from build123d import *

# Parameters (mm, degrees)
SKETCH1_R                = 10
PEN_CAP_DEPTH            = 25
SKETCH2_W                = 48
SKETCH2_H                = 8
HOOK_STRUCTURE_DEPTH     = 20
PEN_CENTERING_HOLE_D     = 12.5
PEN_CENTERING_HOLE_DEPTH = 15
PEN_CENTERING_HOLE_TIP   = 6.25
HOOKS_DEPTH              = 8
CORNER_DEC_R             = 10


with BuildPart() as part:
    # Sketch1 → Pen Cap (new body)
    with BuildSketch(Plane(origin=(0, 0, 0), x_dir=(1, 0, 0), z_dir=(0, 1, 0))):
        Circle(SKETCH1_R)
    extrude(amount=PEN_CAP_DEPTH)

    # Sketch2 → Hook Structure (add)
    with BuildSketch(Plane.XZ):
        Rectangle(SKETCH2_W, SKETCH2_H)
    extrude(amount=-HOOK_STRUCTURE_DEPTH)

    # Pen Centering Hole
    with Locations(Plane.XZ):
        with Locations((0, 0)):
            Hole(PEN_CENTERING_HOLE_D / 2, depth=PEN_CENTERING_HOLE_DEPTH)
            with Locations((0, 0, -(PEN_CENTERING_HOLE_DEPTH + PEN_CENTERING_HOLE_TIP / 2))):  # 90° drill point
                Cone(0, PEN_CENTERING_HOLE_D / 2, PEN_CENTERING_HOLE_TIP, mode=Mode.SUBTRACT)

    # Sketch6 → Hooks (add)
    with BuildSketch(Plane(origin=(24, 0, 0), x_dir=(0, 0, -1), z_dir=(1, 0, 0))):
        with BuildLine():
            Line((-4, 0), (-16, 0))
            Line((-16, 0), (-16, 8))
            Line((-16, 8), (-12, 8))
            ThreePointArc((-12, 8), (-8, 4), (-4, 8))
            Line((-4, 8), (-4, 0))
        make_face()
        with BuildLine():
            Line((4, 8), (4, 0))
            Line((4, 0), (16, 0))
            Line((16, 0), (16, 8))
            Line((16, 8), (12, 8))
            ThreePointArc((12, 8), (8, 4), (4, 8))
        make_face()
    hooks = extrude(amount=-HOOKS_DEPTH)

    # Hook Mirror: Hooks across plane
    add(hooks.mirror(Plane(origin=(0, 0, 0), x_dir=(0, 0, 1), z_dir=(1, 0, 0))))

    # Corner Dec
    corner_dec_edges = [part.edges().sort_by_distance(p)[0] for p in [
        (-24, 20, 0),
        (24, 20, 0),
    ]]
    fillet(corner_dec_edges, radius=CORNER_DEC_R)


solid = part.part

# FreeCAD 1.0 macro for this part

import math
import FreeCAD as App
import Part
import Sketcher
Q = App.Units.Quantity


def edges_at(feature, points):
    """Names of the edges that pass closest to the given points."""
    edges = feature.Shape.Edges
    near = lambda p: min(range(len(edges)), key=lambda i: edges[i].distToShape(Part.Vertex(*p))[0])
    return sorted({f"Edge{near(p) + 1}" for p in points})

doc = App.newDocument("Part")
params = doc.addObject("Spreadsheet::Sheet", "Params")
for row, (alias, value) in enumerate([
    ("sketch1_diameter", "20 mm"),
    ("pad1_length", "25 mm"),
    ("sketch2_width", "48 mm"),
    ("sketch2_height", "8 mm"),
    ("pad2_length", "20 mm"),
    ("sketch3_diameter", "12.5 mm"),
    ("hole_diameter", "12.5 mm"),
    ("hole_depth", "15 mm"),
    ("sketch4_radius", "4 mm"),
    ("sketch4_width", "8 mm"),
    ("sketch4_height", "12 mm"),
    ("pad3_length", "8 mm"),
    ("fillet_radius", "10 mm"),
], start=1):
    params.set(f"A{row}", alias)
    params.set(f"B{row}", "=" + value)
    params.setAlias(f"B{row}", alias)

body = doc.addObject("PartDesign::Body", "Body")

sketch1 = body.newObject("Sketcher::SketchObject", "Sketch")
sketch1.AttachmentSupport = (doc.getObject("XZ_Plane"), [""])
sketch1.MapMode = "FlatFace"
sketch1.addGeometry(Part.Circle(App.Vector(0, 0, 0), App.Vector(0, 0, 1), 10), False)
sketch1.addConstraint([
    Sketcher.Constraint("Coincident", 0, 3, -1, 1),
    Sketcher.Constraint("Diameter", 0, Q("20 mm")),
])
sketch1.setExpression("Constraints[1]", "Params.sketch1_diameter")
pad1 = body.newObject("PartDesign::Pad", "Pad")
pad1.Profile = sketch1
pad1.setExpression("Length", "Params.pad1_length")
pad1.Reversed = True

sketch2 = body.newObject("Sketcher::SketchObject", "Sketch001")
sketch2.AttachmentSupport = (doc.getObject("XZ_Plane"), [""])
sketch2.MapMode = "FlatFace"
sketch2.addGeometry([
    Part.LineSegment(App.Vector(-24, 4, 0), App.Vector(-24, -4, 0)),
    Part.LineSegment(App.Vector(-24, -4, 0), App.Vector(24, -4, 0)),
    Part.LineSegment(App.Vector(24, -4, 0), App.Vector(24, 4, 0)),
    Part.LineSegment(App.Vector(24, 4, 0), App.Vector(-24, 4, 0)),
], False)
sketch2.addConstraint([
    Sketcher.Constraint("Coincident", 0, 2, 1, 1),
    Sketcher.Constraint("Coincident", 1, 2, 2, 1),
    Sketcher.Constraint("Coincident", 2, 2, 3, 1),
    Sketcher.Constraint("Coincident", 3, 2, 0, 1),
    Sketcher.Constraint("Vertical", 0),
    Sketcher.Constraint("Horizontal", 1),
    Sketcher.Constraint("Vertical", 2),
    Sketcher.Constraint("Horizontal", 3),
    Sketcher.Constraint("Symmetric", 0, 2, 2, 2, -1, 1),
    Sketcher.Constraint("DistanceX", 1, 1, 1, 2, Q("48 mm")),
    Sketcher.Constraint("DistanceY", 0, 2, 0, 1, Q("8 mm")),
])
sketch2.setExpression("Constraints[9]", "Params.sketch2_width")
sketch2.setExpression("Constraints[10]", "Params.sketch2_height")
pad2 = body.newObject("PartDesign::Pad", "Pad001")
pad2.Profile = sketch2
pad2.setExpression("Length", "Params.pad2_length")
pad2.Reversed = True

sketch3 = body.newObject("Sketcher::SketchObject", "Sketch002")
sketch3.AttachmentSupport = (doc.getObject("XZ_Plane"), [""])
sketch3.MapMode = "FlatFace"
sketch3.addGeometry(Part.Circle(App.Vector(0, 0, 0), App.Vector(0, 0, 1), 6.25), False)
sketch3.addConstraint([
    Sketcher.Constraint("Coincident", 0, 3, -1, 1),
    Sketcher.Constraint("Diameter", 0, Q("12.5 mm")),
])
sketch3.setExpression("Constraints[1]", "Params.sketch3_diameter")
doc.recompute()
hole = body.newObject("PartDesign::Hole", "Hole")
hole.Profile = sketch3
hole.ThreadType = "None"
hole.setExpression("Diameter", "Params.hole_diameter")
hole.DepthType = "Dimension"
hole.setExpression("Depth", "Params.hole_depth")
hole.DrillPoint = "Angled"
hole.DrillPointAngle = 90

sketch4 = body.newObject("Sketcher::SketchObject", "Sketch003")
sketch4.AttachmentSupport = (doc.getObject("YZ_Plane"), [""])
sketch4.MapMode = "FlatFace"
sketch4.AttachmentOffset = App.Placement(App.Vector(0, 0, 24), App.Rotation())
sketch4.addGeometry([
    Part.LineSegment(App.Vector(0, 16, 0), App.Vector(0, 4, 0)),
    Part.LineSegment(App.Vector(0, 4, 0), App.Vector(8, 4, 0)),
    Part.ArcOfCircle(Part.Circle(App.Vector(8, 8, 0), App.Vector(0, 0, 1), 4), math.radians(90), math.radians(270)),
    Part.LineSegment(App.Vector(8, 12, 0), App.Vector(8, 16, 0)),
    Part.LineSegment(App.Vector(8, 16, 0), App.Vector(0, 16, 0)),
    Part.LineSegment(App.Vector(8, -4, 0), App.Vector(0, -4, 0)),
    Part.LineSegment(App.Vector(0, -4, 0), App.Vector(0, -16, 0)),
    Part.LineSegment(App.Vector(0, -16, 0), App.Vector(8, -16, 0)),
    Part.LineSegment(App.Vector(8, -16, 0), App.Vector(8, -12, 0)),
    Part.ArcOfCircle(Part.Circle(App.Vector(8, -8, 0), App.Vector(0, 0, 1), 4), math.radians(90), math.radians(270)),
], False)
sketch4.addConstraint([
    Sketcher.Constraint("Coincident", 0, 2, 1, 1),
    Sketcher.Constraint("Tangent", 1, 2, 2, 2),
    Sketcher.Constraint("Coincident", 2, 1, 3, 1),
    Sketcher.Constraint("Coincident", 3, 2, 4, 1),
    Sketcher.Constraint("Coincident", 4, 2, 0, 1),
    Sketcher.Constraint("Coincident", 5, 2, 6, 1),
    Sketcher.Constraint("Coincident", 6, 2, 7, 1),
    Sketcher.Constraint("Coincident", 7, 2, 8, 1),
    Sketcher.Constraint("Coincident", 8, 2, 9, 2),
    Sketcher.Constraint("Tangent", 9, 1, 5, 1),
    Sketcher.Constraint("Vertical", 0),
    Sketcher.Constraint("Horizontal", 1),
    Sketcher.Constraint("Vertical", 3),
    Sketcher.Constraint("Horizontal", 4),
    Sketcher.Constraint("Horizontal", 5),
    Sketcher.Constraint("Vertical", 6),
    Sketcher.Constraint("Horizontal", 7),
    Sketcher.Constraint("Vertical", 8),
    Sketcher.Constraint("Equal", 2, 9),
    Sketcher.Constraint("Symmetric", 0, 2, 5, 2, -1, 1),
    Sketcher.Constraint("Symmetric", 4, 2, 6, 2, -1),
    Sketcher.Constraint("Vertical", 2, 3, 9, 3),
    Sketcher.Constraint("Vertical", 1, 2, 2, 1),
    Sketcher.Constraint("Vertical", 3, 2, 7, 2),
    Sketcher.Constraint("Radius", 2, Q("4 mm")),
    Sketcher.Constraint("DistanceX", 1, 1, 1, 2, Q("8 mm")),
    Sketcher.Constraint("DistanceY", 0, 2, 0, 1, Q("12 mm")),
    Sketcher.Constraint("DistanceY", -1, 1, 2, 3, Q("8 mm")),
])
sketch4.setExpression("Constraints[24]", "Params.sketch4_radius")
sketch4.setExpression("Constraints[25]", "Params.sketch4_width")
sketch4.setExpression("Constraints[26]", "Params.sketch4_height")
pad3 = body.newObject("PartDesign::Pad", "Pad002")
pad3.Profile = sketch4
pad3.setExpression("Length", "Params.pad3_length")
pad3.Reversed = True
doc.recompute()

mirrored = body.newObject("PartDesign::Mirrored", "Mirrored")
mirrored.Originals = [pad3]
mirrored.MirrorPlane = (doc.getObject("YZ_Plane"), [""])
body.Tip = mirrored
doc.recompute()

fillet = body.newObject("PartDesign::Fillet", "Fillet")
fillet.Base = (mirrored, edges_at(mirrored, [(-24, 20, 0), (24, 20, 0)]))
fillet.setExpression("Radius", "Params.fillet_radius")

doc.recompute()
